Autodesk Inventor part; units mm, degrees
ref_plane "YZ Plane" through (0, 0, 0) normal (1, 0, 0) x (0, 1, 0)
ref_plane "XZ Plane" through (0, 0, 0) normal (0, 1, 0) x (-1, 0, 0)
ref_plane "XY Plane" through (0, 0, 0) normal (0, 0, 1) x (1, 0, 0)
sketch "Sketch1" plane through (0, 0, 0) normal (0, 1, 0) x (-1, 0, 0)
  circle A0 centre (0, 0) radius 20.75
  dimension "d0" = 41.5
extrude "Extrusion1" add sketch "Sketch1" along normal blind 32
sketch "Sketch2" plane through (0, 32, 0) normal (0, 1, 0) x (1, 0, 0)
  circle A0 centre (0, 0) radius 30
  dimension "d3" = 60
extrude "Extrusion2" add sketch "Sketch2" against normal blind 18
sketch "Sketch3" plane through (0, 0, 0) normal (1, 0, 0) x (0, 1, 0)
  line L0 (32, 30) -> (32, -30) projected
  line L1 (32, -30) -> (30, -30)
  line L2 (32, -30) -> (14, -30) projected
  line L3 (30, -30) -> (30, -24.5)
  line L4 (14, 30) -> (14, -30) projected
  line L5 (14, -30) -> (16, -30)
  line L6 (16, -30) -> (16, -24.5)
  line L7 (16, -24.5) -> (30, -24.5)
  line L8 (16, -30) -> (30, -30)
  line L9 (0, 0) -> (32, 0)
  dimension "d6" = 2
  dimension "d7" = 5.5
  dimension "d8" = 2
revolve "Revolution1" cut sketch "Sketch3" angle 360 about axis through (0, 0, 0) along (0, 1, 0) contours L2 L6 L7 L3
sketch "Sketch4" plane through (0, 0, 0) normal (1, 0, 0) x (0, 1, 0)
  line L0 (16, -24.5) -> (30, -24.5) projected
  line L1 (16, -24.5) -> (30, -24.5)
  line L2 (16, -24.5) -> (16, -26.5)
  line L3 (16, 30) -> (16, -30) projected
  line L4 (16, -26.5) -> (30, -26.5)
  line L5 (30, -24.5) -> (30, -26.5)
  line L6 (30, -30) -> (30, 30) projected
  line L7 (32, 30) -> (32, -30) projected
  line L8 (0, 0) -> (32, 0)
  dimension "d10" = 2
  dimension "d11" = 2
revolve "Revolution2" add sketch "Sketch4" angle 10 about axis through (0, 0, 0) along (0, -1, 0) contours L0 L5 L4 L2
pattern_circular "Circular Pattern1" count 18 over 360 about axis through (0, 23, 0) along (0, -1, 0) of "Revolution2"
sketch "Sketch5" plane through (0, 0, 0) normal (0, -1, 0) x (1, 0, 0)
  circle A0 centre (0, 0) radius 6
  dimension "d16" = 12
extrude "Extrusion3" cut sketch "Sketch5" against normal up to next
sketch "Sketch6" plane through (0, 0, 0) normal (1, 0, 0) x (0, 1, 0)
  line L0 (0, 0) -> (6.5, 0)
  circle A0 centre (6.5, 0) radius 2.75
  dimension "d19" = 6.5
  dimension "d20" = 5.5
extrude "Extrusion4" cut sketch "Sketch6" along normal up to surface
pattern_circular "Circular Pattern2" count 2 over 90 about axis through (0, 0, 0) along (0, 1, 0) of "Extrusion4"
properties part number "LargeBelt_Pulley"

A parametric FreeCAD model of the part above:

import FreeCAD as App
import Part
import Sketcher

V = App.Vector
Q = App.Units.Quantity

doc = App.newDocument("Part")
body = doc.addObject("PartDesign::Body", "Body")

# Sketch on XZ plane
sketch1 = body.newObject("Sketcher::SketchObject", "Sketch")
sketch1.AttachmentSupport = (doc.getObject("XZ_Plane"), [""])
sketch1.MapMode = "FlatFace"
sketch1.addGeometry(Part.Circle(V(0, 0, 0), V(0, 0, 1), 21), False)
sketch1.addConstraint([
    Sketcher.Constraint("Coincident", 0, 3, -1, 1),
    Sketcher.Constraint("Diameter", 0, Q("41.5 mm")),
])
pad1 = body.newObject("PartDesign::Pad", "Pad")
pad1.Profile = sketch1
pad1.Length = 32
pad1.Reversed = True

# Sketch on XZ plane
sketch2 = body.newObject("Sketcher::SketchObject", "Sketch001")
sketch2.AttachmentSupport = (doc.getObject("XZ_Plane"), [""])
sketch2.MapMode = "FlatFace"
sketch2.AttachmentOffset = App.Placement(V(0, 0, -32), App.Rotation())
sketch2.addGeometry(Part.Circle(V(0, 0, 0), V(0, 0, 1), 30), False)
sketch2.addConstraint([
    Sketcher.Constraint("Coincident", 0, 3, -1, 1),
    Sketcher.Constraint("Diameter", 0, Q("60 mm")),
])
pad2 = body.newObject("PartDesign::Pad", "Pad001")
pad2.Profile = sketch2
pad2.Length = 18

# Sketch on YZ plane
sketch3 = body.newObject("Sketcher::SketchObject", "Sketch002")
sketch3.AttachmentSupport = (doc.getObject("YZ_Plane"), [""])
sketch3.MapMode = "FlatFace"
sketch3.addGeometry([
    Part.LineSegment(V(16, -30, 0), V(30, -30, 0)),
    Part.LineSegment(V(30, -30, 0), V(30, -24, 0)),
    Part.LineSegment(V(30, -24, 0), V(16, -24, 0)),
    Part.LineSegment(V(16, -24, 0), V(16, -30, 0)),
], False)
sketch3.addConstraint([
    Sketcher.Constraint("Coincident", 0, 2, 1, 1),
    Sketcher.Constraint("Coincident", 1, 2, 2, 1),
    Sketcher.Constraint("Coincident", 2, 2, 3, 1),
    Sketcher.Constraint("Coincident", 3, 2, 0, 1),
    Sketcher.Constraint("Horizontal", 0),
    Sketcher.Constraint("Vertical", 1),
    Sketcher.Constraint("Horizontal", 2),
    Sketcher.Constraint("Vertical", 3),
    Sketcher.Constraint("DistanceY", 1, 1, 1, 2, Q("5.5 mm")),
    Sketcher.Constraint("DistanceX", 0, 1, 0, 2, Q("14 mm")),
    Sketcher.Constraint("DistanceX", -1, 1, 0, 2, Q("30 mm")),
    Sketcher.Constraint("DistanceY", 0, 2, -1, 1, Q("30 mm")),
])
groove = body.newObject("PartDesign::Groove", "Groove")
groove.Profile = sketch3
groove.ReferenceAxis = (sketch3, ["H_Axis"])
groove.Angle = 360

# Sketch on YZ plane
sketch4 = body.newObject("Sketcher::SketchObject", "Sketch003")
sketch4.AttachmentSupport = (doc.getObject("YZ_Plane"), [""])
sketch4.MapMode = "FlatFace"
sketch4.addGeometry([
    Part.LineSegment(V(30, -24.5, 0), V(16, -24.5, 0)),
    Part.LineSegment(V(16, -24.5, 0), V(16, -26.5, 0)),
    Part.LineSegment(V(16, -26.5, 0), V(30, -26.5, 0)),
    Part.LineSegment(V(30, -26.5, 0), V(30, -24.5, 0)),
], False)
sketch4.addConstraint([
    Sketcher.Constraint("Coincident", 0, 2, 1, 1),
    Sketcher.Constraint("Coincident", 1, 2, 2, 1),
    Sketcher.Constraint("Coincident", 2, 2, 3, 1),
    Sketcher.Constraint("Coincident", 3, 2, 0, 1),
    Sketcher.Constraint("Horizontal", 0),
    Sketcher.Constraint("Vertical", 1),
    Sketcher.Constraint("Horizontal", 2),
    Sketcher.Constraint("Vertical", 3),
    Sketcher.Constraint("DistanceY", 1, 2, 1, 1, Q("2 mm")),
    Sketcher.Constraint("DistanceX", 0, 2, 0, 1, Q("14 mm")),
    Sketcher.Constraint("DistanceX", -1, 1, 0, 2, Q("16 mm")),
    Sketcher.Constraint("DistanceY", 0, 2, -1, 1, Q("24.5 mm")),
])
revolution = body.newObject("PartDesign::Revolution", "Revolution")
revolution.Profile = sketch4
revolution.ReferenceAxis = (sketch4, ["H_Axis"])
revolution.Angle = 10
revolution.Reversed = True
doc.recompute()

polarpattern = body.newObject("PartDesign::PolarPattern", "PolarPattern")
polarpattern.Originals = [revolution]
polarpattern.Axis = (doc.getObject("Y_Axis"), [""])
polarpattern.Angle = 360
polarpattern.Occurrences = 18
body.Tip = polarpattern

# Sketch on XZ plane
sketch5 = body.newObject("Sketcher::SketchObject", "Sketch004")
sketch5.AttachmentSupport = (doc.getObject("XZ_Plane"), [""])
sketch5.MapMode = "FlatFace"
sketch5.addGeometry(Part.Circle(V(0, 0, 0), V(0, 0, 1), 6), False)
sketch5.addConstraint([
    Sketcher.Constraint("Coincident", 0, 3, -1, 1),
    Sketcher.Constraint("Diameter", 0, Q("12 mm")),
])
pocket1 = body.newObject("PartDesign::Pocket", "Pocket")
pocket1.Profile = sketch5
pocket1.Type = "UpToFirst"

# Sketch on YZ plane
sketch6 = body.newObject("Sketcher::SketchObject", "Sketch005")
sketch6.AttachmentSupport = (doc.getObject("YZ_Plane"), [""])
sketch6.MapMode = "FlatFace"
sketch6.addGeometry(Part.Circle(V(6.5, 0, 0), V(0, 0, 1), 2.8), False)
sketch6.addConstraint([
    Sketcher.Constraint("PointOnObject", 0, 3, -1),
    Sketcher.Constraint("Diameter", 0, Q("5.5 mm")),
    Sketcher.Constraint("DistanceX", -1, 1, 0, 3, Q("6.5 mm")),
])
pocket2 = body.newObject("PartDesign::Pocket", "Pocket001")
pocket2.Profile = sketch6
pocket2.Length = 20.75
pocket2.Reversed = True
doc.recompute()

polarpattern2 = body.newObject("PartDesign::PolarPattern", "PolarPattern001")
polarpattern2.Originals = [pocket2]
polarpattern2.Axis = (doc.getObject("Y_Axis"), [""])
polarpattern2.Angle = 90
polarpattern2.Occurrences = 2
body.Tip = polarpattern2

doc.recompute()
